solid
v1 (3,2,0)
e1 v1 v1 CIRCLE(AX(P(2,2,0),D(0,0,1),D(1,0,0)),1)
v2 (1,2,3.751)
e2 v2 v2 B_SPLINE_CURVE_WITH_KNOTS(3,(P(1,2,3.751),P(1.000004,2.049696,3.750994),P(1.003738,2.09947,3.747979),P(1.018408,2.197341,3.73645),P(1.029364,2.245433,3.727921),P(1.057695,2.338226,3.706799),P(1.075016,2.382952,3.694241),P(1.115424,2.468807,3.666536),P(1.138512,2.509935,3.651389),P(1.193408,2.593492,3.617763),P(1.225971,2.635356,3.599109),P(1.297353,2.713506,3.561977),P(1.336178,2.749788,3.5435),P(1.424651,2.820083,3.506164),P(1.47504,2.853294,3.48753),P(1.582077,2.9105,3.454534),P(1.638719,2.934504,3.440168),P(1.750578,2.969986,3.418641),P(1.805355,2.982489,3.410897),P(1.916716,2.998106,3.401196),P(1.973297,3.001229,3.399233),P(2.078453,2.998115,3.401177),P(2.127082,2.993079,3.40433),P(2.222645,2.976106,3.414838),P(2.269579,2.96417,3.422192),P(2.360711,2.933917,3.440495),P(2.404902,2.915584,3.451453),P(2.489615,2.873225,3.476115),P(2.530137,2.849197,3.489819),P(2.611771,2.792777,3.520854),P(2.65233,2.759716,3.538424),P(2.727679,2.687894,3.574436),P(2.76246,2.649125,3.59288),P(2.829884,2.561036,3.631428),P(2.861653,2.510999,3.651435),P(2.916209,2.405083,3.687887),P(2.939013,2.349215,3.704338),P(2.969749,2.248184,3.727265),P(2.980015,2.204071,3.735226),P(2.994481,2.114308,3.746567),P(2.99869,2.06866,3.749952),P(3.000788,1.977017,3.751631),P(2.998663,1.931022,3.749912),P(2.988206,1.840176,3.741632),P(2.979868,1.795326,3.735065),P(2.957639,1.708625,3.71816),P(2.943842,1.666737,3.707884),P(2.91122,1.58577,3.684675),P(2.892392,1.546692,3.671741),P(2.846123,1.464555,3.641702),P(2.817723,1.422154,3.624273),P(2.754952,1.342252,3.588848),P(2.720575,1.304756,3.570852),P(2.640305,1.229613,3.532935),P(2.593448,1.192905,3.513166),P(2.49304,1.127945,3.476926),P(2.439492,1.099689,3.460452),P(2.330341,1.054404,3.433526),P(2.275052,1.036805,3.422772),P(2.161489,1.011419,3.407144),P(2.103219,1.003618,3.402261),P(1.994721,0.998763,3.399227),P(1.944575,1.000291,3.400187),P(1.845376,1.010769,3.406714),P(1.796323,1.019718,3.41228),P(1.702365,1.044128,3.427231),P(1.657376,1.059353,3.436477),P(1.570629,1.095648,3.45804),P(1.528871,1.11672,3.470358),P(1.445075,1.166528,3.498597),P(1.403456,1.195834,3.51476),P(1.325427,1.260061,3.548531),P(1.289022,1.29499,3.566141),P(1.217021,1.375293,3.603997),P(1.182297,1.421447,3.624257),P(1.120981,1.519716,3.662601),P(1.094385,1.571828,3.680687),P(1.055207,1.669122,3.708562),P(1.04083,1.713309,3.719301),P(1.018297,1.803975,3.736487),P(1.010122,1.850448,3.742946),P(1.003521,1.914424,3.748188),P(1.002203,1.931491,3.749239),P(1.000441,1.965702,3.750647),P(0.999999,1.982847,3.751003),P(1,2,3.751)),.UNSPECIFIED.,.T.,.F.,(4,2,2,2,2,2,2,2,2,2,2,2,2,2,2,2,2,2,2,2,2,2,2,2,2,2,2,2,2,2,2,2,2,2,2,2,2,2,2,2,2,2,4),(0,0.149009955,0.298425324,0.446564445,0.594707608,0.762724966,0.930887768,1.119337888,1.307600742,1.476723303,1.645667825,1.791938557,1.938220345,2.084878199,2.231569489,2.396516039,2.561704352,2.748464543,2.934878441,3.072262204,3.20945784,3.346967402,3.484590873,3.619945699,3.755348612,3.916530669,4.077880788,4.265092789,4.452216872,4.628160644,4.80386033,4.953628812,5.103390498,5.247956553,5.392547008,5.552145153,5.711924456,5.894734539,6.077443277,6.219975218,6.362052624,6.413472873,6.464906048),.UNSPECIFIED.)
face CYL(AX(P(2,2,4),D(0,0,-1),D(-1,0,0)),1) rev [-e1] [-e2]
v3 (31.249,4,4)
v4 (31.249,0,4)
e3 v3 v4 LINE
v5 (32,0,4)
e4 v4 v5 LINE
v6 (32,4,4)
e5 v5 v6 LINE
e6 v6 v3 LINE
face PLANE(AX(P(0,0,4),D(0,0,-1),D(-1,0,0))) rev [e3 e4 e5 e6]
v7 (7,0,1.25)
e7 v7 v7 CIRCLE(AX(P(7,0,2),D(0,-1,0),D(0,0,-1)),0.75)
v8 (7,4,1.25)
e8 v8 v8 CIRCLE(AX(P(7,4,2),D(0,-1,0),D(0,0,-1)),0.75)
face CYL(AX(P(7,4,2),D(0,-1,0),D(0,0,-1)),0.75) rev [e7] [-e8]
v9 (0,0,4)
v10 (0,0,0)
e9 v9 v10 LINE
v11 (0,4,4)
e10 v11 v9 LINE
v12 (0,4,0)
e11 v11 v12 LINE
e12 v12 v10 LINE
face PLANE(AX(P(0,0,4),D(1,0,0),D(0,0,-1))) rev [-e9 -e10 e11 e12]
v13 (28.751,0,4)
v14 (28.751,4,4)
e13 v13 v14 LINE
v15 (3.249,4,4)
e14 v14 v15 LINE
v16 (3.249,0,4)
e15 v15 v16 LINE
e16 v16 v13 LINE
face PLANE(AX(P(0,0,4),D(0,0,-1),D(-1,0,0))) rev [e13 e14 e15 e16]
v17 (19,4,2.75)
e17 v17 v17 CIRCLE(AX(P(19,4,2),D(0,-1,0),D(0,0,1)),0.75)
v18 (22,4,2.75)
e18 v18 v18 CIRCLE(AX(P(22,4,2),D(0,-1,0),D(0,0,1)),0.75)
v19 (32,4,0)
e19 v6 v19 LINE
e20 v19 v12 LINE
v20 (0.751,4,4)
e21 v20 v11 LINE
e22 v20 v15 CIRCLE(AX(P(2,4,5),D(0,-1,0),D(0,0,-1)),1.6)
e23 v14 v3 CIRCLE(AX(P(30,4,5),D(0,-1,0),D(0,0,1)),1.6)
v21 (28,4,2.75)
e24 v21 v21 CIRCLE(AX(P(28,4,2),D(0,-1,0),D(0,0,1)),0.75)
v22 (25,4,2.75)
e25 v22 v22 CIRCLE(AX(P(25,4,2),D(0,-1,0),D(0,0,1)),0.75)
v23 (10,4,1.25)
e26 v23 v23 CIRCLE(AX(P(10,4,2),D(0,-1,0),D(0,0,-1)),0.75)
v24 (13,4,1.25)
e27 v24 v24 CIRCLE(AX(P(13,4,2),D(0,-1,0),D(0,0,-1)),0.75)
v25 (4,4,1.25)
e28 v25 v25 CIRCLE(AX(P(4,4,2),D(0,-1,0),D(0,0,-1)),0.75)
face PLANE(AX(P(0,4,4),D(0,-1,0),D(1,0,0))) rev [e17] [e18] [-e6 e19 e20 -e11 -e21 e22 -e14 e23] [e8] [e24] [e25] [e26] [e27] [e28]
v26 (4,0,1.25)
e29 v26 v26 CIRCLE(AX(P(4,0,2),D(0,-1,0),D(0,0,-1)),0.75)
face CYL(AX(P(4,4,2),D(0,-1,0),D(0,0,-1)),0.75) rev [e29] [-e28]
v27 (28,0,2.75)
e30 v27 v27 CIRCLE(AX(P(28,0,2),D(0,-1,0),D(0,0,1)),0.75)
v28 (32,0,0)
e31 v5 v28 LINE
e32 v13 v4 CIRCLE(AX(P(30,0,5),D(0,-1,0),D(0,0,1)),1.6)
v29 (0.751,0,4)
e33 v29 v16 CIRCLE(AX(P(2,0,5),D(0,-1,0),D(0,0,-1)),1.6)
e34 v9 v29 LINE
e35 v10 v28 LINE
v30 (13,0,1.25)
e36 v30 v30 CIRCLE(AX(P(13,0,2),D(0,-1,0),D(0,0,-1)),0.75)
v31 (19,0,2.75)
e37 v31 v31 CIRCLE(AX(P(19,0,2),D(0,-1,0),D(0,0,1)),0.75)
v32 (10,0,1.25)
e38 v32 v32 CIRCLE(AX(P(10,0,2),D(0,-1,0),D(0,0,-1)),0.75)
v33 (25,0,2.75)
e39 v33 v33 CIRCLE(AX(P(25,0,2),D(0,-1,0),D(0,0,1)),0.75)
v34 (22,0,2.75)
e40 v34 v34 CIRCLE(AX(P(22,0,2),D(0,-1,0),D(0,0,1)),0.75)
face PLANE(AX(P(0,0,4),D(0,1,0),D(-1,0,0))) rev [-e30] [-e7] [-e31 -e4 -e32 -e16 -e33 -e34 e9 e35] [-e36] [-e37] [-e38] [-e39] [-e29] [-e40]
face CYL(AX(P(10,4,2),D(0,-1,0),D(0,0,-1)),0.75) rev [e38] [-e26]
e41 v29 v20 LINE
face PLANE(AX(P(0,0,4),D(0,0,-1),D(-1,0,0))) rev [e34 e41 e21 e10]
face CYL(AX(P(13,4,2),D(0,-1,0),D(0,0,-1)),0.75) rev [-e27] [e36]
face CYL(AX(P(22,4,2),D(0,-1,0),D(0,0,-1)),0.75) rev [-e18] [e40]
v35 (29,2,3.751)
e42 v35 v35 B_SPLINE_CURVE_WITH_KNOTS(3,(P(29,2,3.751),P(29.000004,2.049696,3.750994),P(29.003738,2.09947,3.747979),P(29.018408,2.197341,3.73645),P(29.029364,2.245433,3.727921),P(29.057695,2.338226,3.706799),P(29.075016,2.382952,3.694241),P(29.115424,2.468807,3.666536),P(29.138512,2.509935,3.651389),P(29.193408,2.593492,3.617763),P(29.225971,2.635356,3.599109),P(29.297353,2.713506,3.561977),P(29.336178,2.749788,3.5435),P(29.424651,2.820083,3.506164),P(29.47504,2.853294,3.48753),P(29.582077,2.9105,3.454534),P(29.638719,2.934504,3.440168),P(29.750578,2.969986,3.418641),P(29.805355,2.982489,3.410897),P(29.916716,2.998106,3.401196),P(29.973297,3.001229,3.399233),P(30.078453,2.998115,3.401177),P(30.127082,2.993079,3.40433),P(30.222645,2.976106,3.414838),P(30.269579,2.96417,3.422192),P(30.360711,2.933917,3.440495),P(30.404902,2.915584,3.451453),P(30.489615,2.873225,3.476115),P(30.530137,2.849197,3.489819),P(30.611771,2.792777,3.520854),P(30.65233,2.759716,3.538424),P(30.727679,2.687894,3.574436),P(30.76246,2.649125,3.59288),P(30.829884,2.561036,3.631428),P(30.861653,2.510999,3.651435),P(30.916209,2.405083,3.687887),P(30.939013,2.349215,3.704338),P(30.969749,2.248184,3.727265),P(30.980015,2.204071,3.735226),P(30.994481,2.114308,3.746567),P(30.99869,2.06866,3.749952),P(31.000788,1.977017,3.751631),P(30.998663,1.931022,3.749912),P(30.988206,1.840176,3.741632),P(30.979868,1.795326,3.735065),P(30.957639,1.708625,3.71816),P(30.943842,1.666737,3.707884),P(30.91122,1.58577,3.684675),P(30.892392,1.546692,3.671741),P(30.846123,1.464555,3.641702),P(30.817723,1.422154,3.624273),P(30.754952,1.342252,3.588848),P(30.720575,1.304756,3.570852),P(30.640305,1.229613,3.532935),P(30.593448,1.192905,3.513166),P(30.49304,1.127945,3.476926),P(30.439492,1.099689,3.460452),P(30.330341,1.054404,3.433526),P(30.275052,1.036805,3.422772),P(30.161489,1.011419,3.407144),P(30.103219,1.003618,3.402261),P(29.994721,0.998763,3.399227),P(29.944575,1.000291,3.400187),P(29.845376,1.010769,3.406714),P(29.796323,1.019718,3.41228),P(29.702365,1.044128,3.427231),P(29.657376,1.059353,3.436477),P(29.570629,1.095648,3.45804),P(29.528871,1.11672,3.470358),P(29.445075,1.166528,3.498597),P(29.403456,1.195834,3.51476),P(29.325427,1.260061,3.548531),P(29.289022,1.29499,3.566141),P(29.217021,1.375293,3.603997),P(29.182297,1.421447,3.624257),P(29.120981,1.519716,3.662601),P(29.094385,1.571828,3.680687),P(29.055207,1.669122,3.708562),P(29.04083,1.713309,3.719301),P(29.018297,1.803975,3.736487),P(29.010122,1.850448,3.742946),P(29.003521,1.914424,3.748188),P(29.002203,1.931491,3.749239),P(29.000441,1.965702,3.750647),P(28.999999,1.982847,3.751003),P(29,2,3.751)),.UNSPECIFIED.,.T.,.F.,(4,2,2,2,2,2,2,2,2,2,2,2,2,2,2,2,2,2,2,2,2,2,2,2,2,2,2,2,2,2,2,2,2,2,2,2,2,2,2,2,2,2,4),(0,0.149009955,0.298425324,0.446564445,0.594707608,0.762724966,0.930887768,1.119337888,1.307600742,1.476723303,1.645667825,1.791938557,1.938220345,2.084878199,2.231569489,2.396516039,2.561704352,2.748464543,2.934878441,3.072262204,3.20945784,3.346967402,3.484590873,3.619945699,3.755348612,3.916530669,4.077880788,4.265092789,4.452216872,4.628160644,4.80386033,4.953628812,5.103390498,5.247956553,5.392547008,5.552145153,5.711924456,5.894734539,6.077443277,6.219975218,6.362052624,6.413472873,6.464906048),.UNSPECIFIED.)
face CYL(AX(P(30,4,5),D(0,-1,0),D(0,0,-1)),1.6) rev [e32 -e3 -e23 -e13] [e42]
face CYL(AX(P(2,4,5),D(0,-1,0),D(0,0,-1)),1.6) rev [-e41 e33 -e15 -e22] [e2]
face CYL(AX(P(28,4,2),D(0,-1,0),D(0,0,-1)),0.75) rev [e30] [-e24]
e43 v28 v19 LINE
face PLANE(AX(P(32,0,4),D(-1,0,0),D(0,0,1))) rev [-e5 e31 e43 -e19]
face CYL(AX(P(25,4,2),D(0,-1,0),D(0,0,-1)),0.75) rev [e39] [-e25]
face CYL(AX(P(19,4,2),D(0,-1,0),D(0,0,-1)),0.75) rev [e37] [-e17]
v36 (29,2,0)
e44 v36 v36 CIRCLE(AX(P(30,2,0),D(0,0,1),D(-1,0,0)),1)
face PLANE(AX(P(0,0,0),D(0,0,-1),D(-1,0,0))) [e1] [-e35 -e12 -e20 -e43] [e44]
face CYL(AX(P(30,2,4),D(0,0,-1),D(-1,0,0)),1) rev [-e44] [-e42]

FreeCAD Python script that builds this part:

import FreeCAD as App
import Part
import Sketcher

V = App.Vector

doc = App.newDocument("Part")
body = doc.addObject("PartDesign::Body", "Body")

sketch1 = body.newObject("Sketcher::SketchObject", "Sketch")
sketch1.AttachmentSupport = (doc.getObject("XY_Plane"), [""])
sketch1.MapMode = "FlatFace"
sketch1.addGeometry([
    Part.LineSegment(V(0, 4, 0), V(0, 0, 0)),
    Part.LineSegment(V(0, 0, 0), V(32, 0, 0)),
    Part.LineSegment(V(32, 0, 0), V(32, 4, 0)),
    Part.LineSegment(V(32, 4, 0), V(0, 4, 0)),
    Part.Circle(V(2, 2, 0), V(0, 0, 1), 1),
    Part.Circle(V(30, 2, 0), V(0, 0, 1), 1),
], False)
sketch1.addConstraint([
    Sketcher.Constraint("Coincident", 0, 2, 1, 1),
    Sketcher.Constraint("Coincident", 1, 2, 2, 1),
    Sketcher.Constraint("Coincident", 2, 2, 3, 1),
    Sketcher.Constraint("Coincident", 3, 2, 0, 1),
    Sketcher.Constraint("Vertical", 0),
    Sketcher.Constraint("Horizontal", 1),
    Sketcher.Constraint("Vertical", 2),
    Sketcher.Constraint("Horizontal", 3),
    Sketcher.Constraint("Coincident", 0, 2, -1, 1),
    Sketcher.Constraint("Equal", 4, 5),
    Sketcher.Constraint("Horizontal", 4, 3, 5, 3),
    Sketcher.Constraint("Diameter", 4, 2.0),
    Sketcher.Constraint("DistanceX", 1, 1, 1, 2, 32.0),
    Sketcher.Constraint("DistanceY", 0, 2, 0, 1, 4.0),
    Sketcher.Constraint("DistanceX", -1, 1, 4, 3, 2.0),
    Sketcher.Constraint("DistanceY", -1, 1, 4, 3, 2.0),
    Sketcher.Constraint("DistanceX", -1, 1, 5, 3, 30.0),
])
pad1 = body.newObject("PartDesign::Pad", "Pad")
pad1.Profile = sketch1
pad1.Length = 4

sketch2 = body.newObject("Sketcher::SketchObject", "Sketch001")
sketch2.AttachmentSupport = (doc.getObject("XZ_Plane"), [""])
sketch2.MapMode = "FlatFace"
sketch2.addGeometry([
    Part.Circle(V(2, 5, 0), V(0, 0, 1), 1.6),
    Part.Circle(V(13, 2, 0), V(0, 0, 1), 0.75),
    Part.Circle(V(10, 2, 0), V(0, 0, 1), 0.75),
    Part.Circle(V(7, 2, 0), V(0, 0, 1), 0.75),
    Part.Circle(V(25, 2, 0), V(0, 0, 1), 0.75),
    Part.Circle(V(22, 2, 0), V(0, 0, 1), 0.75),
    Part.Circle(V(19, 2, 0), V(0, 0, 1), 0.75),
    Part.Circle(V(30, 5, 0), V(0, 0, 1), 1.6),
    Part.Circle(V(28, 2, 0), V(0, 0, 1), 0.75),
    Part.Circle(V(4, 2, 0), V(0, 0, 1), 0.75),
], False)
sketch2.addConstraint([
    Sketcher.Constraint("Equal", 1, 2),
    Sketcher.Constraint("Equal", 2, 3),
    Sketcher.Constraint("Equal", 3, 4),
    Sketcher.Constraint("Equal", 4, 5),
    Sketcher.Constraint("Equal", 5, 6),
    Sketcher.Constraint("Equal", 0, 7),
    Sketcher.Constraint("Equal", 6, 8),
    Sketcher.Constraint("Equal", 8, 9),
    Sketcher.Constraint("Horizontal", 1, 3, 2, 3),
    Sketcher.Constraint("Horizontal", 2, 3, 3, 3),
    Sketcher.Constraint("Horizontal", 3, 3, 4, 3),
    Sketcher.Constraint("Horizontal", 4, 3, 5, 3),
    Sketcher.Constraint("Horizontal", 5, 3, 6, 3),
    Sketcher.Constraint("Horizontal", 0, 3, 7, 3),
    Sketcher.Constraint("Horizontal", 6, 3, 8, 3),
    Sketcher.Constraint("Horizontal", 8, 3, 9, 3),
    Sketcher.Constraint("Diameter", 0, 3.2),
    Sketcher.Constraint("Diameter", 1, 1.5),
    Sketcher.Constraint("DistanceX", -1, 1, 0, 3, 2.0),
    Sketcher.Constraint("DistanceY", -1, 1, 0, 3, 5.0),
    Sketcher.Constraint("DistanceX", -1, 1, 1, 3, 13.0),
    Sketcher.Constraint("DistanceY", -1, 1, 1, 3, 2.0),
    Sketcher.Constraint("DistanceX", -1, 1, 2, 3, 10.0),
    Sketcher.Constraint("DistanceX", -1, 1, 3, 3, 7.0),
    Sketcher.Constraint("DistanceX", -1, 1, 4, 3, 25.0),
    Sketcher.Constraint("DistanceX", -1, 1, 5, 3, 22.0),
    Sketcher.Constraint("DistanceX", -1, 1, 6, 3, 19.0),
    Sketcher.Constraint("DistanceX", -1, 1, 7, 3, 30.0),
    Sketcher.Constraint("DistanceX", -1, 1, 8, 3, 28.0),
    Sketcher.Constraint("DistanceX", -1, 1, 9, 3, 4.0),
])
pocket1 = body.newObject("PartDesign::Pocket", "Pocket")
pocket1.Profile = sketch2
pocket1.Length = 4

doc.recompute()
